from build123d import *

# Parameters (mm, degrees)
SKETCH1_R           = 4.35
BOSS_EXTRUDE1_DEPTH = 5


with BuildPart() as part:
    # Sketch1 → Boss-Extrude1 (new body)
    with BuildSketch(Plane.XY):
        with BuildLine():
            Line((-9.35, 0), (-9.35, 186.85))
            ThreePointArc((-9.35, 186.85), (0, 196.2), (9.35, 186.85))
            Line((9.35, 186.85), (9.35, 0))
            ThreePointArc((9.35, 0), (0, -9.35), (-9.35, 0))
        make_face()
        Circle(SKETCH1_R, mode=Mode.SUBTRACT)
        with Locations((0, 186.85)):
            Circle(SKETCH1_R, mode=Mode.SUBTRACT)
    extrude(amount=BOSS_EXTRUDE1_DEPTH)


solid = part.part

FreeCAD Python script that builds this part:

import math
import FreeCAD as App
import Part
import Sketcher

doc = App.newDocument("Part")
body = doc.addObject("PartDesign::Body", "Body")

# Sketch on XY plane
sketch1 = body.newObject("Sketcher::SketchObject", "Sketch")
sketch1.AttachmentSupport = (doc.getObject("XY_Plane"), [""])
sketch1.MapMode = "FlatFace"
sketch1.addGeometry(Part.LineSegment(App.Vector(-9.35, 186.85, 0), App.Vector(-9.35, 0, 0)), False)
sketch1.addGeometry(Part.ArcOfCircle(Part.Circle(App.Vector(0, 0, 0), App.Vector(0, 0, 1), 9.35), math.radians(180), math.radians(360)), False)
sketch1.addGeometry(Part.LineSegment(App.Vector(9.35, 0, 0), App.Vector(9.35, 186.85, 0)), False)
sketch1.addGeometry(Part.ArcOfCircle(Part.Circle(App.Vector(0, 186.85, 0), App.Vector(0, 0, 1), 9.35), math.radians(0), math.radians(180)), False)
sketch1.addGeometry(Part.Circle(App.Vector(0, 0, 0), App.Vector(0, 0, 1), 4.35), False)
sketch1.addGeometry(Part.Circle(App.Vector(0, 186.85, 0), App.Vector(0, 0, 1), 4.35), False)
sketch1.addConstraint(Sketcher.Constraint("Tangent", 0, 2, 1, 1))
sketch1.addConstraint(Sketcher.Constraint("Tangent", 1, 2, 2, 1))
sketch1.addConstraint(Sketcher.Constraint("Tangent", 2, 2, 3, 1))
sketch1.addConstraint(Sketcher.Constraint("Tangent", 3, 2, 0, 1))
sketch1.addConstraint(Sketcher.Constraint("Vertical", 0))
sketch1.addConstraint(Sketcher.Constraint("Vertical", 2))
sketch1.addConstraint(Sketcher.Constraint("Coincident", 1, 3, -1, 1))
sketch1.addConstraint(Sketcher.Constraint("Coincident", 4, 3, -1, 1))
sketch1.addConstraint(Sketcher.Constraint("Coincident", 5, 3, 3, 3))
sketch1.addConstraint(Sketcher.Constraint("Equal", 4, 5))
sketch1.addConstraint(Sketcher.Constraint("Diameter", 4, 8.7))
sketch1.addConstraint(Sketcher.Constraint("Radius", 1, 9.35))
sketch1.addConstraint(Sketcher.Constraint("DistanceY", 0, 2, 0, 1, 186.85))
pad1 = body.newObject("PartDesign::Pad", "Pad")
pad1.Profile = sketch1
pad1.Length = 5

doc.recompute()
